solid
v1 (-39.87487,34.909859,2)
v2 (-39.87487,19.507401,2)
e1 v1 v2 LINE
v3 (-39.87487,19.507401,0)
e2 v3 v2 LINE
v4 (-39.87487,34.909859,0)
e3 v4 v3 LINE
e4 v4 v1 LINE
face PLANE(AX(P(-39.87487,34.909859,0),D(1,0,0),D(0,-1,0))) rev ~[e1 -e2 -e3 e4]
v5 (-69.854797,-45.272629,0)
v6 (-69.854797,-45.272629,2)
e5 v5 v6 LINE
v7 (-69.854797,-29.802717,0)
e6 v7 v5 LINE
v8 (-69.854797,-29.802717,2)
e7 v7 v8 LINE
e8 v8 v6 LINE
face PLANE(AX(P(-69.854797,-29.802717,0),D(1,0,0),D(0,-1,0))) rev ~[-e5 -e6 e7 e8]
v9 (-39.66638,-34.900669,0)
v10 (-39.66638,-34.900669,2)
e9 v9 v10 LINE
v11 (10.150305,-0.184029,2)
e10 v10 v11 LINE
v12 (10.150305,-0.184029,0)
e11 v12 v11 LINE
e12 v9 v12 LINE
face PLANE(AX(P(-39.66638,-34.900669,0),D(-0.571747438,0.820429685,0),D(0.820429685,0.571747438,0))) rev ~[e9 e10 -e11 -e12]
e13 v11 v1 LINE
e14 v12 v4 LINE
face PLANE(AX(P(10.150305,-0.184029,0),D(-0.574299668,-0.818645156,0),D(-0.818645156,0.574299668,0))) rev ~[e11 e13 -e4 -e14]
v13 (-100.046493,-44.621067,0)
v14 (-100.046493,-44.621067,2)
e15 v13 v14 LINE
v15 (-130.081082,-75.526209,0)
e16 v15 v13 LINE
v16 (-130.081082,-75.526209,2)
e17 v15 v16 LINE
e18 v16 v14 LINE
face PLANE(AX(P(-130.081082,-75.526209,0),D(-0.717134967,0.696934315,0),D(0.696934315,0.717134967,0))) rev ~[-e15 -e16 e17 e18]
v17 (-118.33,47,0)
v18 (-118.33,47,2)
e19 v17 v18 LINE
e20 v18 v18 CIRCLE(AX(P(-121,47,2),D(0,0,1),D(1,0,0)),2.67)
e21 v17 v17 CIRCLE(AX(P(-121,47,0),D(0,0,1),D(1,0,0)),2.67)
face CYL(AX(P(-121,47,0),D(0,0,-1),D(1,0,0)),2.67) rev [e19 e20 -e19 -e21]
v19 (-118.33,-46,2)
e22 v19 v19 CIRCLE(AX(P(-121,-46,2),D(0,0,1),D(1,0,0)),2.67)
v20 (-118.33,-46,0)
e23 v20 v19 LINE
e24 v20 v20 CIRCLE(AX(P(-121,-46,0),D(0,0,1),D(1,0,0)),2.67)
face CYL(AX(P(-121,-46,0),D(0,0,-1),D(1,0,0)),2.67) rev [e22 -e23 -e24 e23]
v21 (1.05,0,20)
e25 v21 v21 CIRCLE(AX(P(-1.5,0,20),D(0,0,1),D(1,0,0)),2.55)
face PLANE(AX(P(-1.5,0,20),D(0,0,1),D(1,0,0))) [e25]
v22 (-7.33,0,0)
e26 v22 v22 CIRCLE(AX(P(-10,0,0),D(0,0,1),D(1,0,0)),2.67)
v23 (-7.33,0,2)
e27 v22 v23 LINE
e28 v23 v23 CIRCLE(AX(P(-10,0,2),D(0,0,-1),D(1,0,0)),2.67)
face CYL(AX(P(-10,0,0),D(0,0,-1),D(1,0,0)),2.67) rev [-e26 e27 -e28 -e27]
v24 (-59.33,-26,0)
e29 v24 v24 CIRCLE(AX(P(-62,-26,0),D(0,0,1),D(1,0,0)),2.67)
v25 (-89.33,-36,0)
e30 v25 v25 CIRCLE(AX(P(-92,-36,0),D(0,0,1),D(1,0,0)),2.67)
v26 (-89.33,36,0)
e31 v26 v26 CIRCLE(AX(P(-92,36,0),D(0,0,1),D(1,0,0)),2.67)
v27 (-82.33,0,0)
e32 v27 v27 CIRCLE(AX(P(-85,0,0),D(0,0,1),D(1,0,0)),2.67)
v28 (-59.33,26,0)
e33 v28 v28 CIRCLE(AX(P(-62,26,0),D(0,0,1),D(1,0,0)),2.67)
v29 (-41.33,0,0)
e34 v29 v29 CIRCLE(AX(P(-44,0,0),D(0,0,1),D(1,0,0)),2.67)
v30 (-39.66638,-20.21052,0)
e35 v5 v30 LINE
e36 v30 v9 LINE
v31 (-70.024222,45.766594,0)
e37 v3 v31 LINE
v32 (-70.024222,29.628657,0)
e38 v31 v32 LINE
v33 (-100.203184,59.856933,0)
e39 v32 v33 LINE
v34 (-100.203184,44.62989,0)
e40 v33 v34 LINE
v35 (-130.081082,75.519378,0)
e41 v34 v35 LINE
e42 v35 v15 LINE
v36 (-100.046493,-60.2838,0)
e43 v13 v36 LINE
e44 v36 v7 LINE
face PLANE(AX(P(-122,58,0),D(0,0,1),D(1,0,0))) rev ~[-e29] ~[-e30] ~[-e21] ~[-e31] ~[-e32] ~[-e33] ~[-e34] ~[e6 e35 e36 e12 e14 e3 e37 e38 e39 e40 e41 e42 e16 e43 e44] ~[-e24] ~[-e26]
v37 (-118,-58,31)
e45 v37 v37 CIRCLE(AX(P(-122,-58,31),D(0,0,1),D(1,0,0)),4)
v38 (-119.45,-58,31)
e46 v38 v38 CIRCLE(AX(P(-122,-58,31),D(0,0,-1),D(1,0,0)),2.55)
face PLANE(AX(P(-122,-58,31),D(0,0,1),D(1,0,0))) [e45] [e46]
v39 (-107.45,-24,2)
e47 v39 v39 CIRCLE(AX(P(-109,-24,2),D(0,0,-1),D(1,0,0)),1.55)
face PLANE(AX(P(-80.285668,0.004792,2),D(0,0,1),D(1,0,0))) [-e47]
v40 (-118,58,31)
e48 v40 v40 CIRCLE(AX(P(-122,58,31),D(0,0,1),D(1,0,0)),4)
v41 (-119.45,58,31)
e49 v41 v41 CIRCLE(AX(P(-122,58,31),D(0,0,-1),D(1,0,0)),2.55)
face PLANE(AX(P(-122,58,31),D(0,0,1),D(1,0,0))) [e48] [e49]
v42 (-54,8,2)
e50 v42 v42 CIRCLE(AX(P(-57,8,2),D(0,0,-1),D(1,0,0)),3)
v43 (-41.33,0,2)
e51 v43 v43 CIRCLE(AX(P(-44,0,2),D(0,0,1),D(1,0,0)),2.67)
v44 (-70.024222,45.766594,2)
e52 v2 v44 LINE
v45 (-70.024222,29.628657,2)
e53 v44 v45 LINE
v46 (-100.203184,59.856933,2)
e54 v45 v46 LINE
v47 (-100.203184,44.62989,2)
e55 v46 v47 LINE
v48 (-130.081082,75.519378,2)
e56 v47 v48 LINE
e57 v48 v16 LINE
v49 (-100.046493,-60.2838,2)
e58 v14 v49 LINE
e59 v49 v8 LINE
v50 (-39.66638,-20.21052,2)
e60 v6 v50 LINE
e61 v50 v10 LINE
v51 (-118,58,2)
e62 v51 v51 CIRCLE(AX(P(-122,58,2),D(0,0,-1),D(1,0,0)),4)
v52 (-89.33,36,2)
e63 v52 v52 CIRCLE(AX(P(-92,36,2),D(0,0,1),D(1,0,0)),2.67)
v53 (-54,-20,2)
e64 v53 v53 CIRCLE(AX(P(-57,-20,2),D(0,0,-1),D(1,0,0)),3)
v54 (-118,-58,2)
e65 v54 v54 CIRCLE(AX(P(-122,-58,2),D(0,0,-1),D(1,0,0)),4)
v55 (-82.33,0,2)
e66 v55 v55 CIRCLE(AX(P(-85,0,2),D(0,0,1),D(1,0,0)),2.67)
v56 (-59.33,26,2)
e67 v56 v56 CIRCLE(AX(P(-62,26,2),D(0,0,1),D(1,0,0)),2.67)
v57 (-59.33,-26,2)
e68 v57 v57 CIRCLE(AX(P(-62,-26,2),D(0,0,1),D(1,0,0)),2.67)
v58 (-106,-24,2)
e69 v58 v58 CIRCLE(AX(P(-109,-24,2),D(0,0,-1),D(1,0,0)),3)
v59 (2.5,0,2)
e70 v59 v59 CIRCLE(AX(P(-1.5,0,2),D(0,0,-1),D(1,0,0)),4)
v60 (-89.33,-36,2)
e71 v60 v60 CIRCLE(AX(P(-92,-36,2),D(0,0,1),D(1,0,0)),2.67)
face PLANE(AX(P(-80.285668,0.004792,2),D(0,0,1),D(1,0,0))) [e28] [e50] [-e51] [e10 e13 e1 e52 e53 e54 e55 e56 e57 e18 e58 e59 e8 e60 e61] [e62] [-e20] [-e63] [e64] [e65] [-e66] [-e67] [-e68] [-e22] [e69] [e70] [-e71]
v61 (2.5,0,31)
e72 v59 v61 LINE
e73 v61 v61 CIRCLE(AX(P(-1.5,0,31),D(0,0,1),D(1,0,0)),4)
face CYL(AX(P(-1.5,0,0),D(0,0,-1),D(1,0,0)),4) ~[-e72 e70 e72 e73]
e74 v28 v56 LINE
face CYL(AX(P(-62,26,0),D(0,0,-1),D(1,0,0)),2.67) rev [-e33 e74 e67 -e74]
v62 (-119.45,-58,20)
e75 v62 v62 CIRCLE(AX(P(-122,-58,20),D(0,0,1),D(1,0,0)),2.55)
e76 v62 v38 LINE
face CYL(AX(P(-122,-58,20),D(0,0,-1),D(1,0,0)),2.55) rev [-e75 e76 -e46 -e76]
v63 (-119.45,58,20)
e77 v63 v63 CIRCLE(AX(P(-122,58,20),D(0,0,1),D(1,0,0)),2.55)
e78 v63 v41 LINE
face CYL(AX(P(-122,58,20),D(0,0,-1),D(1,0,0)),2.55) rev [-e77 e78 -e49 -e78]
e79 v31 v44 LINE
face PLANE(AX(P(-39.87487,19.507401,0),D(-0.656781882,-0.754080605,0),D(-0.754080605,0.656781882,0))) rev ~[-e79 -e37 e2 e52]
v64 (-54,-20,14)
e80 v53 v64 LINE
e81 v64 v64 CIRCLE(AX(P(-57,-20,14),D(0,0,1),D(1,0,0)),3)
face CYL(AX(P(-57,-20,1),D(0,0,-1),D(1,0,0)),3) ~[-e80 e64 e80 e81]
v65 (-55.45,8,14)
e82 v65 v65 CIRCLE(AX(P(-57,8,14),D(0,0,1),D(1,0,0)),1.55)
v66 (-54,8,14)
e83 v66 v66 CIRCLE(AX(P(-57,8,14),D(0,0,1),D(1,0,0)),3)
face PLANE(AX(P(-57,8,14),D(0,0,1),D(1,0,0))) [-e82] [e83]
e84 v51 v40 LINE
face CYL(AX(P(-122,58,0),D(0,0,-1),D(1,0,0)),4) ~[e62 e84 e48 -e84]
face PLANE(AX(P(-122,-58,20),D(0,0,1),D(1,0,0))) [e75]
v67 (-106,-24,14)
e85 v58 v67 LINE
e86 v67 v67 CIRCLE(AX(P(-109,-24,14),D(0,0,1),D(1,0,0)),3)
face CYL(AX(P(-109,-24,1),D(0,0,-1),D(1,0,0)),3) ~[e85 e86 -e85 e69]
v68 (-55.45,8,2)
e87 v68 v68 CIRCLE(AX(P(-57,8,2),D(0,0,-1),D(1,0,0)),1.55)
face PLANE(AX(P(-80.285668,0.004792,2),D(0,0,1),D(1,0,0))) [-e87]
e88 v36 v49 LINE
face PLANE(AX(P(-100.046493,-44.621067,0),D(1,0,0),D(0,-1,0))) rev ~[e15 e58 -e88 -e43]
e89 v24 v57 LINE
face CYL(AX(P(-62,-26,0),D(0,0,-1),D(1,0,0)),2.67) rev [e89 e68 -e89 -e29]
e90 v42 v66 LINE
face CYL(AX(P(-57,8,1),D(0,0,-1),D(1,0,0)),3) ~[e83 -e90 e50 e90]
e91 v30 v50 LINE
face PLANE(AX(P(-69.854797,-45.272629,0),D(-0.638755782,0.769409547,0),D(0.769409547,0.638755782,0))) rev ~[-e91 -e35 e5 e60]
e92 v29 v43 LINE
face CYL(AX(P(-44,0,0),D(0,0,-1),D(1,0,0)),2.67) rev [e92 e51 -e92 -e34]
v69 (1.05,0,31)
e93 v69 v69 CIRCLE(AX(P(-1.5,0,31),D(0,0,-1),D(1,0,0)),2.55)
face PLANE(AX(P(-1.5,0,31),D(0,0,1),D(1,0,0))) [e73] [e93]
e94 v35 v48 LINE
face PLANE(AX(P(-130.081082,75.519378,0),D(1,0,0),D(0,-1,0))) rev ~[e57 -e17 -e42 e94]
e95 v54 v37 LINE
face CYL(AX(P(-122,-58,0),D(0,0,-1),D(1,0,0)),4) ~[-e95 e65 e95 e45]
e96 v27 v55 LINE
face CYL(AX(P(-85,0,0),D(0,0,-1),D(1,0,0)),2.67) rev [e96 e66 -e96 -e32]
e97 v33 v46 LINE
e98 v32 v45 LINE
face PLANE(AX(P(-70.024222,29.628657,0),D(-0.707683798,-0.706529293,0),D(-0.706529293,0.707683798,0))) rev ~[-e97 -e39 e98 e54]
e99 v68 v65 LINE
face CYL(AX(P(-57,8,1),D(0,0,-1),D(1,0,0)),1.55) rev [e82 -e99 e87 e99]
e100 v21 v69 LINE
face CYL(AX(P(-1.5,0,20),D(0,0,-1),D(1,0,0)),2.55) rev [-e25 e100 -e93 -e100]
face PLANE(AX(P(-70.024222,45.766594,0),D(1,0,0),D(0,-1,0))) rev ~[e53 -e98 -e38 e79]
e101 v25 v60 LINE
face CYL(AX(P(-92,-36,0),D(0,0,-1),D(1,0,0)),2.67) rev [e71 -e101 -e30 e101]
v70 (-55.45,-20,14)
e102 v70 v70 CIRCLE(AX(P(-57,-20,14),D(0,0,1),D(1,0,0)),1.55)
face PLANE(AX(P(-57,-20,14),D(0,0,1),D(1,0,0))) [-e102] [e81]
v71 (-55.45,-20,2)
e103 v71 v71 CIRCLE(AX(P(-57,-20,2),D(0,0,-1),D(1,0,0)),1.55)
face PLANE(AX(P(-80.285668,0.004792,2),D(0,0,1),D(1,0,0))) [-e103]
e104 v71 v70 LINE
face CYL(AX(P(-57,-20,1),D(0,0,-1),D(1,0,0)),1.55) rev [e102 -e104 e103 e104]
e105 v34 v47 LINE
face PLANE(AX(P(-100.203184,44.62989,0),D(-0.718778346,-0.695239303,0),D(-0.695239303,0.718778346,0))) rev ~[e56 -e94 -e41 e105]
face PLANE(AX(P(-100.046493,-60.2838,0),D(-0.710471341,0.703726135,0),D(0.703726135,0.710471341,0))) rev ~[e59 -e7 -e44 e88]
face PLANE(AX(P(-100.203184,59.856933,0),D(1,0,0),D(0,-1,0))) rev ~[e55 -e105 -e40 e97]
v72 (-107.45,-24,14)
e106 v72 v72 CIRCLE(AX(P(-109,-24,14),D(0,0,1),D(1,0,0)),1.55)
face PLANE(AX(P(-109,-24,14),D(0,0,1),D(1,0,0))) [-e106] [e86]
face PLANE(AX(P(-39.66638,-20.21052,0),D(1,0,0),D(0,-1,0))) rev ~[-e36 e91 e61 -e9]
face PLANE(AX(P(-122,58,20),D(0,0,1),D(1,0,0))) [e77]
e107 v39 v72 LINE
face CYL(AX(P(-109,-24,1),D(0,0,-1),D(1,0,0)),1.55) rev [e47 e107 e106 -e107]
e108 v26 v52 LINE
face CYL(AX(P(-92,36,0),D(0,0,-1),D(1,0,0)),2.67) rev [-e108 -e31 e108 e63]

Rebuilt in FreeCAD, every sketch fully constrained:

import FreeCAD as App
import Part
import Sketcher

doc = App.newDocument("Part")
params = doc.addObject("Spreadsheet::Sheet", "Params")
for row, (alias, value) in enumerate([
    ("sketch1_diameter", "5.1 mm"),
    ("pad1_length", "12 mm"),
    ("sketch2_diameter", "8 mm"),
    ("pad2_length", "31 mm"),
    ("sketch3_diameter", "5.1 mm"),
    ("pad3_length", "12 mm"),
    ("sketch4_diameter", "8 mm"),
    ("pad4_length", "31 mm"),
    ("sketch5_diameter", "5.1 mm"),
    ("pad5_length", "12 mm"),
    ("sketch6_diameter", "8 mm"),
    ("pad6_length", "31 mm"),
    ("sketch7_diameter", "3.1 mm"),
    ("pad7_length", "13 mm"),
    ("sketch8_diameter", "6 mm"),
    ("pad8_length", "13 mm"),
    ("sketch9_diameter", "3.1 mm"),
    ("pad9_length", "13 mm"),
    ("sketch10_diameter", "6 mm"),
    ("pad10_length", "13 mm"),
    ("sketch11_diameter", "5.34 mm"),
    ("pad11_length", "2 mm"),
    ("sketch12_diameter", "5.34 mm"),
    ("pad12_length", "2 mm"),
    ("sketch13_diameter", "5.34 mm"),
    ("pad13_length", "2 mm"),
    ("sketch14_diameter", "5.34 mm"),
    ("pad14_length", "2 mm"),
    ("sketch15_diameter", "5.34 mm"),
    ("pad15_length", "2 mm"),
    ("sketch16_diameter", "5.34 mm"),
    ("pad16_length", "2 mm"),
    ("sketch17_diameter", "5.34 mm"),
    ("pad17_length", "2 mm"),
    ("sketch18_diameter", "5.34 mm"),
    ("pad18_length", "2 mm"),
    ("sketch19_diameter", "5.34 mm"),
    ("pad19_length", "3 mm"),
    ("pad20_length", "2 mm"),
    ("sketch21_diameter", "3.1 mm"),
    ("pad21_length", "13 mm"),
    ("sketch22_diameter", "6 mm"),
    ("pad22_length", "13 mm"),
], start=1):
    params.set(f"A{row}", alias)
    params.set(f"B{row}", "=" + value)
    params.setAlias(f"B{row}", alias)

body = doc.addObject("PartDesign::Body", "Body")

# Sketch on XY plane
sketch1 = body.newObject("Sketcher::SketchObject", "Sketch")
sketch1.AttachmentSupport = (doc.getObject("XY_Plane"), [""])
sketch1.MapMode = "FlatFace"
sketch1.AttachmentOffset = App.Placement(App.Vector(0, 0, 20), App.Rotation())
sketch1.addGeometry(Part.Circle(App.Vector(-121, 39, 0), App.Vector(0, 0, 1), 2.5), False)
sketch1.addConstraint(Sketcher.Constraint("Diameter", 0, 5.1))
sketch1.addConstraint(Sketcher.Constraint("DistanceX", 0, 3, -1, 1, 121.0))
sketch1.addConstraint(Sketcher.Constraint("DistanceY", -1, 1, 0, 3, 39.0))
sketch1.setExpression("Constraints[0]", "Params.sketch1_diameter")
pad1 = body.newObject("PartDesign::Pad", "Pad")
pad1.Profile = sketch1
pad1.setExpression("Length", "Params.pad1_length")
body2 = doc.addObject("PartDesign::Body", "Body001")

# Sketch on XY plane
sketch2 = body2.newObject("Sketcher::SketchObject", "Sketch001")
sketch2.AttachmentSupport = (doc.getObject("XY_Plane001"), [""])
sketch2.MapMode = "FlatFace"
sketch2.addGeometry(Part.Circle(App.Vector(-121, 39, 0), App.Vector(0, 0, 1), 4), False)
sketch2.addConstraint(Sketcher.Constraint("Diameter", 0, 8.0))
sketch2.addConstraint(Sketcher.Constraint("DistanceX", 0, 3, -1, 1, 121.0))
sketch2.addConstraint(Sketcher.Constraint("DistanceY", -1, 1, 0, 3, 39.0))
sketch2.setExpression("Constraints[0]", "Params.sketch2_diameter")
pad2 = body2.newObject("PartDesign::Pad", "Pad001")
pad2.Profile = sketch2
pad2.setExpression("Length", "Params.pad2_length")
doc.recompute()

boolean = body2.newObject("PartDesign::Boolean", "Boolean")
boolean.Type = "Cut"
boolean.addObjects([body])
body3 = doc.addObject("PartDesign::Body", "Body002")
doc.recompute()

body2.Placement = App.Placement(App.Vector(-1, 19, 0), App.Rotation(App.Vector(0, 0, 1), 0))
boolean2 = body3.newObject("PartDesign::Boolean", "Boolean001")
boolean2.Type = "Fuse"
boolean2.addObjects([body2])
body4 = doc.addObject("PartDesign::Body", "Body003")

# Sketch on XY plane
sketch3 = body4.newObject("Sketcher::SketchObject", "Sketch002")
sketch3.AttachmentSupport = (doc.getObject("XY_Plane003"), [""])
sketch3.MapMode = "FlatFace"
sketch3.AttachmentOffset = App.Placement(App.Vector(0, 0, 20), App.Rotation())
sketch3.addGeometry(Part.Circle(App.Vector(-2, 0, 0), App.Vector(0, 0, 1), 2.5), False)
sketch3.addConstraint(Sketcher.Constraint("PointOnObject", 0, 3, -1))
sketch3.addConstraint(Sketcher.Constraint("Diameter", 0, 5.1))
sketch3.addConstraint(Sketcher.Constraint("DistanceX", 0, 3, -1, 1, 2.0))
sketch3.setExpression("Constraints[1]", "Params.sketch3_diameter")
pad3 = body4.newObject("PartDesign::Pad", "Pad002")
pad3.Profile = sketch3
pad3.setExpression("Length", "Params.pad3_length")
body5 = doc.addObject("PartDesign::Body", "Body004")

# Sketch on XY plane
sketch4 = body5.newObject("Sketcher::SketchObject", "Sketch003")
sketch4.AttachmentSupport = (doc.getObject("XY_Plane004"), [""])
sketch4.MapMode = "FlatFace"
sketch4.addGeometry(Part.Circle(App.Vector(-2, 0, 0), App.Vector(0, 0, 1), 4), False)
sketch4.addConstraint(Sketcher.Constraint("PointOnObject", 0, 3, -1))
sketch4.addConstraint(Sketcher.Constraint("Diameter", 0, 8.0))
sketch4.addConstraint(Sketcher.Constraint("DistanceX", 0, 3, -1, 1, 2.0))
sketch4.setExpression("Constraints[1]", "Params.sketch4_diameter")
pad4 = body5.newObject("PartDesign::Pad", "Pad003")
pad4.Profile = sketch4
pad4.setExpression("Length", "Params.pad4_length")
doc.recompute()

boolean3 = body5.newObject("PartDesign::Boolean", "Boolean002")
boolean3.Type = "Cut"
boolean3.addObjects([body4])
body6 = doc.addObject("PartDesign::Body", "Body005")
doc.recompute()

body5.Placement = App.Placement(App.Vector(0.5, 0, 0), App.Rotation(App.Vector(0, 0, 1), 0))
boolean4 = body6.newObject("PartDesign::Boolean", "Boolean003")
boolean4.Type = "Fuse"
boolean4.addObjects([body5])
body7 = doc.addObject("PartDesign::Body", "Body006")

# Sketch on XY plane
sketch5 = body7.newObject("Sketcher::SketchObject", "Sketch004")
sketch5.AttachmentSupport = (doc.getObject("XY_Plane006"), [""])
sketch5.MapMode = "FlatFace"
sketch5.AttachmentOffset = App.Placement(App.Vector(0, 0, 20), App.Rotation())
sketch5.addGeometry(Part.Circle(App.Vector(-121, -36, 0), App.Vector(0, 0, 1), 2.5), False)
sketch5.addConstraint(Sketcher.Constraint("Diameter", 0, 5.1))
sketch5.addConstraint(Sketcher.Constraint("DistanceX", 0, 3, -1, 1, 121.0))
sketch5.addConstraint(Sketcher.Constraint("DistanceY", 0, 3, -1, 1, 36.0))
sketch5.setExpression("Constraints[0]", "Params.sketch5_diameter")
pad5 = body7.newObject("PartDesign::Pad", "Pad004")
pad5.Profile = sketch5
pad5.setExpression("Length", "Params.pad5_length")
body8 = doc.addObject("PartDesign::Body", "Body007")

# Sketch on XY plane
sketch6 = body8.newObject("Sketcher::SketchObject", "Sketch005")
sketch6.AttachmentSupport = (doc.getObject("XY_Plane007"), [""])
sketch6.MapMode = "FlatFace"
sketch6.addGeometry(Part.Circle(App.Vector(-121, -36, 0), App.Vector(0, 0, 1), 4), False)
sketch6.addConstraint(Sketcher.Constraint("Diameter", 0, 8.0))
sketch6.addConstraint(Sketcher.Constraint("DistanceX", 0, 3, -1, 1, 121.0))
sketch6.addConstraint(Sketcher.Constraint("DistanceY", 0, 3, -1, 1, 36.0))
sketch6.setExpression("Constraints[0]", "Params.sketch6_diameter")
pad6 = body8.newObject("PartDesign::Pad", "Pad005")
pad6.Profile = sketch6
pad6.setExpression("Length", "Params.pad6_length")
doc.recompute()

boolean5 = body8.newObject("PartDesign::Boolean", "Boolean004")
boolean5.Type = "Cut"
boolean5.addObjects([body7])
body9 = doc.addObject("PartDesign::Body", "Body008")
doc.recompute()

body8.Placement = App.Placement(App.Vector(-1, -22, 0), App.Rotation(App.Vector(0, 0, 1), 0))
boolean6 = body9.newObject("PartDesign::Boolean", "Boolean005")
boolean6.Type = "Fuse"
boolean6.addObjects([body8])
body10 = doc.addObject("PartDesign::Body", "Body009")

# Sketch on XY plane
sketch7 = body10.newObject("Sketcher::SketchObject", "Sketch006")
sketch7.AttachmentSupport = (doc.getObject("XY_Plane009"), [""])
sketch7.MapMode = "FlatFace"
sketch7.addGeometry(Part.Circle(App.Vector(0, -140, 0), App.Vector(0, 0, 1), 1.6), False)
sketch7.addConstraint(Sketcher.Constraint("PointOnObject", 0, 3, -2))
sketch7.addConstraint(Sketcher.Constraint("Diameter", 0, 3.1))
sketch7.addConstraint(Sketcher.Constraint("DistanceY", 0, 3, -1, 1, 140.0))
sketch7.setExpression("Constraints[1]", "Params.sketch7_diameter")
pad7 = body10.newObject("PartDesign::Pad", "Pad006")
pad7.Profile = sketch7
pad7.setExpression("Length", "Params.pad7_length")
body11 = doc.addObject("PartDesign::Body", "Body010")

# Sketch on XY plane
sketch8 = body11.newObject("Sketcher::SketchObject", "Sketch007")
sketch8.AttachmentSupport = (doc.getObject("XY_Plane010"), [""])
sketch8.MapMode = "FlatFace"
sketch8.addGeometry(Part.Circle(App.Vector(0, -140, 0), App.Vector(0, 0, 1), 3), False)
sketch8.addConstraint(Sketcher.Constraint("PointOnObject", 0, 3, -2))
sketch8.addConstraint(Sketcher.Constraint("Diameter", 0, 6.0))
sketch8.addConstraint(Sketcher.Constraint("DistanceY", 0, 3, -1, 1, 140.0))
sketch8.setExpression("Constraints[1]", "Params.sketch8_diameter")
pad8 = body11.newObject("PartDesign::Pad", "Pad007")
pad8.Profile = sketch8
pad8.setExpression("Length", "Params.pad8_length")
doc.recompute()

boolean7 = body11.newObject("PartDesign::Boolean", "Boolean006")
boolean7.Type = "Cut"
boolean7.addObjects([body10])
body12 = doc.addObject("PartDesign::Body", "Body011")
doc.recompute()

body11.Placement = App.Placement(App.Vector(-109, 116, 1), App.Rotation(App.Vector(0, 0, 1), 0))
boolean8 = body12.newObject("PartDesign::Boolean", "Boolean007")
boolean8.Type = "Fuse"
boolean8.addObjects([body11])
body13 = doc.addObject("PartDesign::Body", "Body012")

# Sketch on XY plane
sketch9 = body13.newObject("Sketcher::SketchObject", "Sketch008")
sketch9.AttachmentSupport = (doc.getObject("XY_Plane012"), [""])
sketch9.MapMode = "FlatFace"
sketch9.addGeometry(Part.Circle(App.Vector(0, -140, 0), App.Vector(0, 0, 1), 1.6), False)
sketch9.addConstraint(Sketcher.Constraint("PointOnObject", 0, 3, -2))
sketch9.addConstraint(Sketcher.Constraint("Diameter", 0, 3.1))
sketch9.addConstraint(Sketcher.Constraint("DistanceY", 0, 3, -1, 1, 140.0))
sketch9.setExpression("Constraints[1]", "Params.sketch9_diameter")
pad9 = body13.newObject("PartDesign::Pad", "Pad008")
pad9.Profile = sketch9
pad9.setExpression("Length", "Params.pad9_length")
body14 = doc.addObject("PartDesign::Body", "Body013")

# Sketch on XY plane
sketch10 = body14.newObject("Sketcher::SketchObject", "Sketch009")
sketch10.AttachmentSupport = (doc.getObject("XY_Plane013"), [""])
sketch10.MapMode = "FlatFace"
sketch10.addGeometry(Part.Circle(App.Vector(0, -140, 0), App.Vector(0, 0, 1), 3), False)
sketch10.addConstraint(Sketcher.Constraint("PointOnObject", 0, 3, -2))
sketch10.addConstraint(Sketcher.Constraint("Diameter", 0, 6.0))
sketch10.addConstraint(Sketcher.Constraint("DistanceY", 0, 3, -1, 1, 140.0))
sketch10.setExpression("Constraints[1]", "Params.sketch10_diameter")
pad10 = body14.newObject("PartDesign::Pad", "Pad009")
pad10.Profile = sketch10
pad10.setExpression("Length", "Params.pad10_length")
doc.recompute()

boolean9 = body14.newObject("PartDesign::Boolean", "Boolean008")
boolean9.Type = "Cut"
boolean9.addObjects([body13])
body15 = doc.addObject("PartDesign::Body", "Body014")
doc.recompute()

body14.Placement = App.Placement(App.Vector(-57, 148, 1), App.Rotation(App.Vector(0, 0, 1), 0))
boolean10 = body15.newObject("PartDesign::Boolean", "Boolean009")
boolean10.Type = "Fuse"
boolean10.addObjects([body14])
body16 = doc.addObject("PartDesign::Body", "Body015")

# Sketch on XY plane
sketch11 = body16.newObject("Sketcher::SketchObject", "Sketch010")
sketch11.AttachmentSupport = (doc.getObject("XY_Plane015"), [""])
sketch11.MapMode = "FlatFace"
sketch11.addGeometry(Part.Circle(App.Vector(-85, 0, 0), App.Vector(0, 0, 1), 2.7), False)
sketch11.addConstraint(Sketcher.Constraint("PointOnObject", 0, 3, -1))
sketch11.addConstraint(Sketcher.Constraint("Diameter", 0, 5.34))
sketch11.addConstraint(Sketcher.Constraint("DistanceX", 0, 3, -1, 1, 85.0))
sketch11.setExpression("Constraints[1]", "Params.sketch11_diameter")
pad11 = body16.newObject("PartDesign::Pad", "Pad010")
pad11.Profile = sketch11
pad11.setExpression("Length", "Params.pad11_length")
body17 = doc.addObject("PartDesign::Body", "Body016")

# Sketch on XY plane
sketch12 = body17.newObject("Sketcher::SketchObject", "Sketch011")
sketch12.AttachmentSupport = (doc.getObject("XY_Plane016"), [""])
sketch12.MapMode = "FlatFace"
sketch12.addGeometry(Part.Circle(App.Vector(-44, 0, 0), App.Vector(0, 0, 1), 2.7), False)
sketch12.addConstraint(Sketcher.Constraint("PointOnObject", 0, 3, -1))
sketch12.addConstraint(Sketcher.Constraint("Diameter", 0, 5.34))
sketch12.addConstraint(Sketcher.Constraint("DistanceX", 0, 3, -1, 1, 44.0))
sketch12.setExpression("Constraints[1]", "Params.sketch12_diameter")
pad12 = body17.newObject("PartDesign::Pad", "Pad011")
pad12.Profile = sketch12
pad12.setExpression("Length", "Params.pad12_length")
body18 = doc.addObject("PartDesign::Body", "Body017")

# Sketch on XY plane
sketch13 = body18.newObject("Sketcher::SketchObject", "Sketch012")
sketch13.AttachmentSupport = (doc.getObject("XY_Plane017"), [""])
sketch13.MapMode = "FlatFace"
sketch13.addGeometry(Part.Circle(App.Vector(-121, -46, 0), App.Vector(0, 0, 1), 2.7), False)
sketch13.addConstraint(Sketcher.Constraint("Diameter", 0, 5.34))
sketch13.addConstraint(Sketcher.Constraint("DistanceX", 0, 3, -1, 1, 121.0))
sketch13.addConstraint(Sketcher.Constraint("DistanceY", 0, 3, -1, 1, 46.0))
sketch13.setExpression("Constraints[0]", "Params.sketch13_diameter")
pad13 = body18.newObject("PartDesign::Pad", "Pad012")
pad13.Profile = sketch13
pad13.setExpression("Length", "Params.pad13_length")
body19 = doc.addObject("PartDesign::Body", "Body018")

# Sketch on XY plane
sketch14 = body19.newObject("Sketcher::SketchObject", "Sketch013")
sketch14.AttachmentSupport = (doc.getObject("XY_Plane018"), [""])
sketch14.MapMode = "FlatFace"
sketch14.addGeometry(Part.Circle(App.Vector(-92, -36, 0), App.Vector(0, 0, 1), 2.7), False)
sketch14.addConstraint(Sketcher.Constraint("Diameter", 0, 5.34))
sketch14.addConstraint(Sketcher.Constraint("DistanceX", 0, 3, -1, 1, 92.0))
sketch14.addConstraint(Sketcher.Constraint("DistanceY", 0, 3, -1, 1, 36.0))
sketch14.setExpression("Constraints[0]", "Params.sketch14_diameter")
pad14 = body19.newObject("PartDesign::Pad", "Pad013")
pad14.Profile = sketch14
pad14.setExpression("Length", "Params.pad14_length")
body20 = doc.addObject("PartDesign::Body", "Body019")

# Sketch on XY plane
sketch15 = body20.newObject("Sketcher::SketchObject", "Sketch014")
sketch15.AttachmentSupport = (doc.getObject("XY_Plane019"), [""])
sketch15.MapMode = "FlatFace"
sketch15.addGeometry(Part.Circle(App.Vector(-62, -26, 0), App.Vector(0, 0, 1), 2.7), False)
sketch15.addConstraint(Sketcher.Constraint("Diameter", 0, 5.34))
sketch15.addConstraint(Sketcher.Constraint("DistanceX", 0, 3, -1, 1, 62.0))
sketch15.addConstraint(Sketcher.Constraint("DistanceY", 0, 3, -1, 1, 26.0))
sketch15.setExpression("Constraints[0]", "Params.sketch15_diameter")
pad15 = body20.newObject("PartDesign::Pad", "Pad014")
pad15.Profile = sketch15
pad15.setExpression("Length", "Params.pad15_length")
body21 = doc.addObject("PartDesign::Body", "Body020")

# Sketch on XY plane
sketch16 = body21.newObject("Sketcher::SketchObject", "Sketch015")
sketch16.AttachmentSupport = (doc.getObject("XY_Plane020"), [""])
sketch16.MapMode = "FlatFace"
sketch16.addGeometry(Part.Circle(App.Vector(-121, 47, 0), App.Vector(0, 0, 1), 2.7), False)
sketch16.addConstraint(Sketcher.Constraint("Diameter", 0, 5.34))
sketch16.addConstraint(Sketcher.Constraint("DistanceX", 0, 3, -1, 1, 121.0))
sketch16.addConstraint(Sketcher.Constraint("DistanceY", -1, 1, 0, 3, 47.0))
sketch16.setExpression("Constraints[0]", "Params.sketch16_diameter")
pad16 = body21.newObject("PartDesign::Pad", "Pad015")
pad16.Profile = sketch16
pad16.setExpression("Length", "Params.pad16_length")
body22 = doc.addObject("PartDesign::Body", "Body021")

# Sketch on XY plane
sketch17 = body22.newObject("Sketcher::SketchObject", "Sketch016")
sketch17.AttachmentSupport = (doc.getObject("XY_Plane021"), [""])
sketch17.MapMode = "FlatFace"
sketch17.addGeometry(Part.Circle(App.Vector(-92, 36, 0), App.Vector(0, 0, 1), 2.7), False)
sketch17.addConstraint(Sketcher.Constraint("Diameter", 0, 5.34))
sketch17.addConstraint(Sketcher.Constraint("DistanceX", 0, 3, -1, 1, 92.0))
sketch17.addConstraint(Sketcher.Constraint("DistanceY", -1, 1, 0, 3, 36.0))
sketch17.setExpression("Constraints[0]", "Params.sketch17_diameter")
pad17 = body22.newObject("PartDesign::Pad", "Pad016")
pad17.Profile = sketch17
pad17.setExpression("Length", "Params.pad17_length")
body23 = doc.addObject("PartDesign::Body", "Body022")

# Sketch on XY plane
sketch18 = body23.newObject("Sketcher::SketchObject", "Sketch017")
sketch18.AttachmentSupport = (doc.getObject("XY_Plane022"), [""])
sketch18.MapMode = "FlatFace"
sketch18.addGeometry(Part.Circle(App.Vector(-62, 26, 0), App.Vector(0, 0, 1), 2.7), False)
sketch18.addConstraint(Sketcher.Constraint("Diameter", 0, 5.34))
sketch18.addConstraint(Sketcher.Constraint("DistanceX", 0, 3, -1, 1, 62.0))
sketch18.addConstraint(Sketcher.Constraint("DistanceY", -1, 1, 0, 3, 26.0))
sketch18.setExpression("Constraints[0]", "Params.sketch18_diameter")
pad18 = body23.newObject("PartDesign::Pad", "Pad017")
pad18.Profile = sketch18
pad18.setExpression("Length", "Params.pad18_length")
body24 = doc.addObject("PartDesign::Body", "Body023")

# Sketch on XY plane
sketch19 = body24.newObject("Sketcher::SketchObject", "Sketch018")
sketch19.AttachmentSupport = (doc.getObject("XY_Plane023"), [""])
sketch19.MapMode = "FlatFace"
sketch19.addGeometry(Part.Circle(App.Vector(-10, 0, 0), App.Vector(0, 0, 1), 2.7), False)
sketch19.addConstraint(Sketcher.Constraint("PointOnObject", 0, 3, -1))
sketch19.addConstraint(Sketcher.Constraint("Diameter", 0, 5.34))
sketch19.addConstraint(Sketcher.Constraint("DistanceX", 0, 3, -1, 1, 10.0))
sketch19.setExpression("Constraints[1]", "Params.sketch19_diameter")
pad19 = body24.newObject("PartDesign::Pad", "Pad018")
pad19.Profile = sketch19
pad19.setExpression("Length", "Params.pad19_length")
body25 = doc.addObject("PartDesign::Body", "Body024")

# Sketch on XY plane
sketch20 = body25.newObject("Sketcher::SketchObject", "Sketch019")
sketch20.AttachmentSupport = (doc.getObject("XY_Plane024"), [""])
sketch20.MapMode = "FlatFace"
sketch20.addGeometry(Part.LineSegment(App.Vector(-130, 76, 0), App.Vector(-130, -76, 0)), False)
sketch20.addGeometry(Part.LineSegment(App.Vector(-130, -76, 0), App.Vector(-100, -45, 0)), False)
sketch20.addGeometry(Part.LineSegment(App.Vector(-100, -45, 0), App.Vector(-100, -60, 0)), False)
sketch20.addGeometry(Part.LineSegment(App.Vector(-100, -60, 0), App.Vector(-70, -30, 0)), False)
sketch20.addGeometry(Part.LineSegment(App.Vector(-70, -30, 0), App.Vector(-70, -45, 0)), False)
sketch20.addGeometry(Part.LineSegment(App.Vector(-70, -45, 0), App.Vector(-40, -20, 0)), False)
sketch20.addGeometry(Part.LineSegment(App.Vector(-40, -20, 0), App.Vector(-40, -35, 0)), False)
sketch20.addGeometry(Part.LineSegment(App.Vector(-40, -35, 0), App.Vector(10, 0, 0)), False)
sketch20.addGeometry(Part.LineSegment(App.Vector(10, 0, 0), App.Vector(-40, 35, 0)), False)
sketch20.addGeometry(Part.LineSegment(App.Vector(-40, 35, 0), App.Vector(-40, 20, 0)), False)
sketch20.addGeometry(Part.LineSegment(App.Vector(-40, 20, 0), App.Vector(-70, 46, 0)), False)
sketch20.addGeometry(Part.LineSegment(App.Vector(-70, 46, 0), App.Vector(-70, 30, 0)), False)
sketch20.addGeometry(Part.LineSegment(App.Vector(-70, 30, 0), App.Vector(-100, 60, 0)), False)
sketch20.addGeometry(Part.LineSegment(App.Vector(-100, 60, 0), App.Vector(-100, 45, 0)), False)
sketch20.addGeometry(Part.LineSegment(App.Vector(-100, 45, 0), App.Vector(-130, 76, 0)), False)
sketch20.addConstraint(Sketcher.Constraint("Coincident", 0, 2, 1, 1))
sketch20.addConstraint(Sketcher.Constraint("Coincident", 1, 2, 2, 1))
sketch20.addConstraint(Sketcher.Constraint("Coincident", 2, 2, 3, 1))
sketch20.addConstraint(Sketcher.Constraint("Coincident", 3, 2, 4, 1))
sketch20.addConstraint(Sketcher.Constraint("Coincident", 4, 2, 5, 1))
sketch20.addConstraint(Sketcher.Constraint("Coincident", 5, 2, 6, 1))
sketch20.addConstraint(Sketcher.Constraint("Coincident", 6, 2, 7, 1))
sketch20.addConstraint(Sketcher.Constraint("Coincident", 7, 2, 8, 1))
sketch20.addConstraint(Sketcher.Constraint("Coincident", 8, 2, 9, 1))
sketch20.addConstraint(Sketcher.Constraint("Coincident", 9, 2, 10, 1))
sketch20.addConstraint(Sketcher.Constraint("Coincident", 10, 2, 11, 1))
sketch20.addConstraint(Sketcher.Constraint("Coincident", 11, 2, 12, 1))
sketch20.addConstraint(Sketcher.Constraint("Coincident", 12, 2, 13, 1))
sketch20.addConstraint(Sketcher.Constraint("Coincident", 13, 2, 14, 1))
sketch20.addConstraint(Sketcher.Constraint("Coincident", 14, 2, 0, 1))
sketch20.addConstraint(Sketcher.Constraint("Vertical", 0))
sketch20.addConstraint(Sketcher.Constraint("Vertical", 2))
sketch20.addConstraint(Sketcher.Constraint("Vertical", 4))
sketch20.addConstraint(Sketcher.Constraint("Vertical", 6))
sketch20.addConstraint(Sketcher.Constraint("Vertical", 9))
sketch20.addConstraint(Sketcher.Constraint("Vertical", 11))
sketch20.addConstraint(Sketcher.Constraint("Vertical", 13))
sketch20.addConstraint(Sketcher.Constraint("DistanceY", 6, 2, 6, 1, 14.690149))
sketch20.addConstraint(Sketcher.Constraint("DistanceY", 2, 2, -1, 1, 60.2838))
sketch20.addConstraint(Sketcher.Constraint("DistanceY", -1, 1, 9, 2, 19.507401))
sketch20.addConstraint(Sketcher.Constraint("DistanceY", 4, 2, 7, 2, 45.0886))
sketch20.addConstraint(Sketcher.Constraint("DistanceX", 1, 2, 7, 2, 110.196798))
sketch20.addConstraint(Sketcher.Constraint("DistanceY", 11, 2, 8, 2, 5.281202))
sketch20.addConstraint(Sketcher.Constraint("DistanceX", 14, 2, 12, 2, 29.877898))
sketch20.addConstraint(Sketcher.Constraint("Distance", 3, 42.902621))
sketch20.addConstraint(Sketcher.Constraint("Distance", 12, 42.714382))
sketch20.addConstraint(Sketcher.Constraint("DistanceY", 0, 2, 0, 1, 151.045587))
sketch20.addConstraint(Sketcher.Constraint("DistanceY", 2, 2, 2, 1, 15.662733))
sketch20.addConstraint(Sketcher.Constraint("DistanceY", 4, 2, 4, 1, 15.469912))
sketch20.addConstraint(Sketcher.Constraint("DistanceY", 9, 2, 9, 1, 15.402458))
sketch20.addConstraint(Sketcher.Constraint("DistanceY", 11, 2, 11, 1, 16.137937))
sketch20.addConstraint(Sketcher.Constraint("DistanceY", 13, 2, 13, 1, 15.227043))
sketch20.addConstraint(Sketcher.Constraint("DistanceY", 0, 2, -1, 1, 75.526209))
sketch20.addConstraint(Sketcher.Constraint("DistanceY", 4, 2, -1, 1, 45.272629))
sketch20.addConstraint(Sketcher.Constraint("DistanceX", 5, 2, -1, 1, 39.66638))
sketch20.addConstraint(Sketcher.Constraint("DistanceY", 5, 2, -1, 1, 20.21052))
sketch20.addConstraint(Sketcher.Constraint("DistanceX", 8, 2, -1, 1, 39.87487))
sketch20.addConstraint(Sketcher.Constraint("DistanceX", 10, 2, -1, 1, 70.024222))
sketch20.addConstraint(Sketcher.Constraint("DistanceY", -1, 1, 13, 2, 44.62989))
sketch20.addConstraint(Sketcher.Constraint("DistanceX", 0, 2, 1, 2, 30.034589))
pad20 = body25.newObject("PartDesign::Pad", "Pad019")
pad20.Profile = sketch20
pad20.setExpression("Length", "Params.pad20_length")
doc.recompute()

boolean11 = body25.newObject("PartDesign::Boolean", "Boolean010")
boolean11.Type = "Cut"
boolean11.addObjects([body24])
doc.recompute()

boolean12 = body25.newObject("PartDesign::Boolean", "Boolean011")
boolean12.Type = "Cut"
boolean12.addObjects([body23])
doc.recompute()

boolean13 = body25.newObject("PartDesign::Boolean", "Boolean012")
boolean13.Type = "Cut"
boolean13.addObjects([body22])
doc.recompute()

boolean14 = body25.newObject("PartDesign::Boolean", "Boolean013")
boolean14.Type = "Cut"
boolean14.addObjects([body21])
doc.recompute()

boolean15 = body25.newObject("PartDesign::Boolean", "Boolean014")
boolean15.Type = "Cut"
boolean15.addObjects([body20])
doc.recompute()

boolean16 = body25.newObject("PartDesign::Boolean", "Boolean015")
boolean16.Type = "Cut"
boolean16.addObjects([body19])
doc.recompute()

boolean17 = body25.newObject("PartDesign::Boolean", "Boolean016")
boolean17.Type = "Cut"
boolean17.addObjects([body18])
doc.recompute()

boolean18 = body25.newObject("PartDesign::Boolean", "Boolean017")
boolean18.Type = "Cut"
boolean18.addObjects([body17])
doc.recompute()

boolean19 = body25.newObject("PartDesign::Boolean", "Boolean018")
boolean19.Type = "Cut"
boolean19.addObjects([body16])
body26 = doc.addObject("PartDesign::Body", "Body025")

# Sketch on XY plane
sketch21 = body26.newObject("Sketcher::SketchObject", "Sketch020")
sketch21.AttachmentSupport = (doc.getObject("XY_Plane025"), [""])
sketch21.MapMode = "FlatFace"
sketch21.addGeometry(Part.Circle(App.Vector(0, -140, 0), App.Vector(0, 0, 1), 1.6), False)
sketch21.addConstraint(Sketcher.Constraint("PointOnObject", 0, 3, -2))
sketch21.addConstraint(Sketcher.Constraint("Diameter", 0, 3.1))
sketch21.addConstraint(Sketcher.Constraint("DistanceY", 0, 3, -1, 1, 140.0))
sketch21.setExpression("Constraints[1]", "Params.sketch21_diameter")
pad21 = body26.newObject("PartDesign::Pad", "Pad020")
pad21.Profile = sketch21
pad21.setExpression("Length", "Params.pad21_length")
body27 = doc.addObject("PartDesign::Body", "Body026")

# Sketch on XY plane
sketch22 = body27.newObject("Sketcher::SketchObject", "Sketch021")
sketch22.AttachmentSupport = (doc.getObject("XY_Plane026"), [""])
sketch22.MapMode = "FlatFace"
sketch22.addGeometry(Part.Circle(App.Vector(0, -140, 0), App.Vector(0, 0, 1), 3), False)
sketch22.addConstraint(Sketcher.Constraint("PointOnObject", 0, 3, -2))
sketch22.addConstraint(Sketcher.Constraint("Diameter", 0, 6.0))
sketch22.addConstraint(Sketcher.Constraint("DistanceY", 0, 3, -1, 1, 140.0))
sketch22.setExpression("Constraints[1]", "Params.sketch22_diameter")
pad22 = body27.newObject("PartDesign::Pad", "Pad021")
pad22.Profile = sketch22
pad22.setExpression("Length", "Params.pad22_length")
doc.recompute()

boolean20 = body27.newObject("PartDesign::Boolean", "Boolean019")
boolean20.Type = "Cut"
boolean20.addObjects([body26])
body28 = doc.addObject("PartDesign::Body", "Body027")
doc.recompute()

body27.Placement = App.Placement(App.Vector(-57, 120, 1), App.Rotation(App.Vector(0, 0, 1), 0))
boolean21 = body28.newObject("PartDesign::Boolean", "Boolean020")
boolean21.Type = "Fuse"
boolean21.addObjects([body27])
doc.recompute()

boolean22 = body28.newObject("PartDesign::Boolean", "Boolean021")
boolean22.Type = "Fuse"
boolean22.addObjects([body25])
doc.recompute()

boolean23 = body28.newObject("PartDesign::Boolean", "Boolean022")
boolean23.Type = "Fuse"
boolean23.addObjects([body15])
doc.recompute()

boolean24 = body28.newObject("PartDesign::Boolean", "Boolean023")
boolean24.Type = "Fuse"
boolean24.addObjects([body12])
doc.recompute()

boolean25 = body28.newObject("PartDesign::Boolean", "Boolean024")
boolean25.Type = "Fuse"
boolean25.addObjects([body9])
doc.recompute()

boolean26 = body28.newObject("PartDesign::Boolean", "Boolean025")
boolean26.Type = "Fuse"
boolean26.addObjects([body6])
doc.recompute()

boolean27 = body28.newObject("PartDesign::Boolean", "Boolean026")
boolean27.Type = "Fuse"
boolean27.addObjects([body3])

doc.recompute()
